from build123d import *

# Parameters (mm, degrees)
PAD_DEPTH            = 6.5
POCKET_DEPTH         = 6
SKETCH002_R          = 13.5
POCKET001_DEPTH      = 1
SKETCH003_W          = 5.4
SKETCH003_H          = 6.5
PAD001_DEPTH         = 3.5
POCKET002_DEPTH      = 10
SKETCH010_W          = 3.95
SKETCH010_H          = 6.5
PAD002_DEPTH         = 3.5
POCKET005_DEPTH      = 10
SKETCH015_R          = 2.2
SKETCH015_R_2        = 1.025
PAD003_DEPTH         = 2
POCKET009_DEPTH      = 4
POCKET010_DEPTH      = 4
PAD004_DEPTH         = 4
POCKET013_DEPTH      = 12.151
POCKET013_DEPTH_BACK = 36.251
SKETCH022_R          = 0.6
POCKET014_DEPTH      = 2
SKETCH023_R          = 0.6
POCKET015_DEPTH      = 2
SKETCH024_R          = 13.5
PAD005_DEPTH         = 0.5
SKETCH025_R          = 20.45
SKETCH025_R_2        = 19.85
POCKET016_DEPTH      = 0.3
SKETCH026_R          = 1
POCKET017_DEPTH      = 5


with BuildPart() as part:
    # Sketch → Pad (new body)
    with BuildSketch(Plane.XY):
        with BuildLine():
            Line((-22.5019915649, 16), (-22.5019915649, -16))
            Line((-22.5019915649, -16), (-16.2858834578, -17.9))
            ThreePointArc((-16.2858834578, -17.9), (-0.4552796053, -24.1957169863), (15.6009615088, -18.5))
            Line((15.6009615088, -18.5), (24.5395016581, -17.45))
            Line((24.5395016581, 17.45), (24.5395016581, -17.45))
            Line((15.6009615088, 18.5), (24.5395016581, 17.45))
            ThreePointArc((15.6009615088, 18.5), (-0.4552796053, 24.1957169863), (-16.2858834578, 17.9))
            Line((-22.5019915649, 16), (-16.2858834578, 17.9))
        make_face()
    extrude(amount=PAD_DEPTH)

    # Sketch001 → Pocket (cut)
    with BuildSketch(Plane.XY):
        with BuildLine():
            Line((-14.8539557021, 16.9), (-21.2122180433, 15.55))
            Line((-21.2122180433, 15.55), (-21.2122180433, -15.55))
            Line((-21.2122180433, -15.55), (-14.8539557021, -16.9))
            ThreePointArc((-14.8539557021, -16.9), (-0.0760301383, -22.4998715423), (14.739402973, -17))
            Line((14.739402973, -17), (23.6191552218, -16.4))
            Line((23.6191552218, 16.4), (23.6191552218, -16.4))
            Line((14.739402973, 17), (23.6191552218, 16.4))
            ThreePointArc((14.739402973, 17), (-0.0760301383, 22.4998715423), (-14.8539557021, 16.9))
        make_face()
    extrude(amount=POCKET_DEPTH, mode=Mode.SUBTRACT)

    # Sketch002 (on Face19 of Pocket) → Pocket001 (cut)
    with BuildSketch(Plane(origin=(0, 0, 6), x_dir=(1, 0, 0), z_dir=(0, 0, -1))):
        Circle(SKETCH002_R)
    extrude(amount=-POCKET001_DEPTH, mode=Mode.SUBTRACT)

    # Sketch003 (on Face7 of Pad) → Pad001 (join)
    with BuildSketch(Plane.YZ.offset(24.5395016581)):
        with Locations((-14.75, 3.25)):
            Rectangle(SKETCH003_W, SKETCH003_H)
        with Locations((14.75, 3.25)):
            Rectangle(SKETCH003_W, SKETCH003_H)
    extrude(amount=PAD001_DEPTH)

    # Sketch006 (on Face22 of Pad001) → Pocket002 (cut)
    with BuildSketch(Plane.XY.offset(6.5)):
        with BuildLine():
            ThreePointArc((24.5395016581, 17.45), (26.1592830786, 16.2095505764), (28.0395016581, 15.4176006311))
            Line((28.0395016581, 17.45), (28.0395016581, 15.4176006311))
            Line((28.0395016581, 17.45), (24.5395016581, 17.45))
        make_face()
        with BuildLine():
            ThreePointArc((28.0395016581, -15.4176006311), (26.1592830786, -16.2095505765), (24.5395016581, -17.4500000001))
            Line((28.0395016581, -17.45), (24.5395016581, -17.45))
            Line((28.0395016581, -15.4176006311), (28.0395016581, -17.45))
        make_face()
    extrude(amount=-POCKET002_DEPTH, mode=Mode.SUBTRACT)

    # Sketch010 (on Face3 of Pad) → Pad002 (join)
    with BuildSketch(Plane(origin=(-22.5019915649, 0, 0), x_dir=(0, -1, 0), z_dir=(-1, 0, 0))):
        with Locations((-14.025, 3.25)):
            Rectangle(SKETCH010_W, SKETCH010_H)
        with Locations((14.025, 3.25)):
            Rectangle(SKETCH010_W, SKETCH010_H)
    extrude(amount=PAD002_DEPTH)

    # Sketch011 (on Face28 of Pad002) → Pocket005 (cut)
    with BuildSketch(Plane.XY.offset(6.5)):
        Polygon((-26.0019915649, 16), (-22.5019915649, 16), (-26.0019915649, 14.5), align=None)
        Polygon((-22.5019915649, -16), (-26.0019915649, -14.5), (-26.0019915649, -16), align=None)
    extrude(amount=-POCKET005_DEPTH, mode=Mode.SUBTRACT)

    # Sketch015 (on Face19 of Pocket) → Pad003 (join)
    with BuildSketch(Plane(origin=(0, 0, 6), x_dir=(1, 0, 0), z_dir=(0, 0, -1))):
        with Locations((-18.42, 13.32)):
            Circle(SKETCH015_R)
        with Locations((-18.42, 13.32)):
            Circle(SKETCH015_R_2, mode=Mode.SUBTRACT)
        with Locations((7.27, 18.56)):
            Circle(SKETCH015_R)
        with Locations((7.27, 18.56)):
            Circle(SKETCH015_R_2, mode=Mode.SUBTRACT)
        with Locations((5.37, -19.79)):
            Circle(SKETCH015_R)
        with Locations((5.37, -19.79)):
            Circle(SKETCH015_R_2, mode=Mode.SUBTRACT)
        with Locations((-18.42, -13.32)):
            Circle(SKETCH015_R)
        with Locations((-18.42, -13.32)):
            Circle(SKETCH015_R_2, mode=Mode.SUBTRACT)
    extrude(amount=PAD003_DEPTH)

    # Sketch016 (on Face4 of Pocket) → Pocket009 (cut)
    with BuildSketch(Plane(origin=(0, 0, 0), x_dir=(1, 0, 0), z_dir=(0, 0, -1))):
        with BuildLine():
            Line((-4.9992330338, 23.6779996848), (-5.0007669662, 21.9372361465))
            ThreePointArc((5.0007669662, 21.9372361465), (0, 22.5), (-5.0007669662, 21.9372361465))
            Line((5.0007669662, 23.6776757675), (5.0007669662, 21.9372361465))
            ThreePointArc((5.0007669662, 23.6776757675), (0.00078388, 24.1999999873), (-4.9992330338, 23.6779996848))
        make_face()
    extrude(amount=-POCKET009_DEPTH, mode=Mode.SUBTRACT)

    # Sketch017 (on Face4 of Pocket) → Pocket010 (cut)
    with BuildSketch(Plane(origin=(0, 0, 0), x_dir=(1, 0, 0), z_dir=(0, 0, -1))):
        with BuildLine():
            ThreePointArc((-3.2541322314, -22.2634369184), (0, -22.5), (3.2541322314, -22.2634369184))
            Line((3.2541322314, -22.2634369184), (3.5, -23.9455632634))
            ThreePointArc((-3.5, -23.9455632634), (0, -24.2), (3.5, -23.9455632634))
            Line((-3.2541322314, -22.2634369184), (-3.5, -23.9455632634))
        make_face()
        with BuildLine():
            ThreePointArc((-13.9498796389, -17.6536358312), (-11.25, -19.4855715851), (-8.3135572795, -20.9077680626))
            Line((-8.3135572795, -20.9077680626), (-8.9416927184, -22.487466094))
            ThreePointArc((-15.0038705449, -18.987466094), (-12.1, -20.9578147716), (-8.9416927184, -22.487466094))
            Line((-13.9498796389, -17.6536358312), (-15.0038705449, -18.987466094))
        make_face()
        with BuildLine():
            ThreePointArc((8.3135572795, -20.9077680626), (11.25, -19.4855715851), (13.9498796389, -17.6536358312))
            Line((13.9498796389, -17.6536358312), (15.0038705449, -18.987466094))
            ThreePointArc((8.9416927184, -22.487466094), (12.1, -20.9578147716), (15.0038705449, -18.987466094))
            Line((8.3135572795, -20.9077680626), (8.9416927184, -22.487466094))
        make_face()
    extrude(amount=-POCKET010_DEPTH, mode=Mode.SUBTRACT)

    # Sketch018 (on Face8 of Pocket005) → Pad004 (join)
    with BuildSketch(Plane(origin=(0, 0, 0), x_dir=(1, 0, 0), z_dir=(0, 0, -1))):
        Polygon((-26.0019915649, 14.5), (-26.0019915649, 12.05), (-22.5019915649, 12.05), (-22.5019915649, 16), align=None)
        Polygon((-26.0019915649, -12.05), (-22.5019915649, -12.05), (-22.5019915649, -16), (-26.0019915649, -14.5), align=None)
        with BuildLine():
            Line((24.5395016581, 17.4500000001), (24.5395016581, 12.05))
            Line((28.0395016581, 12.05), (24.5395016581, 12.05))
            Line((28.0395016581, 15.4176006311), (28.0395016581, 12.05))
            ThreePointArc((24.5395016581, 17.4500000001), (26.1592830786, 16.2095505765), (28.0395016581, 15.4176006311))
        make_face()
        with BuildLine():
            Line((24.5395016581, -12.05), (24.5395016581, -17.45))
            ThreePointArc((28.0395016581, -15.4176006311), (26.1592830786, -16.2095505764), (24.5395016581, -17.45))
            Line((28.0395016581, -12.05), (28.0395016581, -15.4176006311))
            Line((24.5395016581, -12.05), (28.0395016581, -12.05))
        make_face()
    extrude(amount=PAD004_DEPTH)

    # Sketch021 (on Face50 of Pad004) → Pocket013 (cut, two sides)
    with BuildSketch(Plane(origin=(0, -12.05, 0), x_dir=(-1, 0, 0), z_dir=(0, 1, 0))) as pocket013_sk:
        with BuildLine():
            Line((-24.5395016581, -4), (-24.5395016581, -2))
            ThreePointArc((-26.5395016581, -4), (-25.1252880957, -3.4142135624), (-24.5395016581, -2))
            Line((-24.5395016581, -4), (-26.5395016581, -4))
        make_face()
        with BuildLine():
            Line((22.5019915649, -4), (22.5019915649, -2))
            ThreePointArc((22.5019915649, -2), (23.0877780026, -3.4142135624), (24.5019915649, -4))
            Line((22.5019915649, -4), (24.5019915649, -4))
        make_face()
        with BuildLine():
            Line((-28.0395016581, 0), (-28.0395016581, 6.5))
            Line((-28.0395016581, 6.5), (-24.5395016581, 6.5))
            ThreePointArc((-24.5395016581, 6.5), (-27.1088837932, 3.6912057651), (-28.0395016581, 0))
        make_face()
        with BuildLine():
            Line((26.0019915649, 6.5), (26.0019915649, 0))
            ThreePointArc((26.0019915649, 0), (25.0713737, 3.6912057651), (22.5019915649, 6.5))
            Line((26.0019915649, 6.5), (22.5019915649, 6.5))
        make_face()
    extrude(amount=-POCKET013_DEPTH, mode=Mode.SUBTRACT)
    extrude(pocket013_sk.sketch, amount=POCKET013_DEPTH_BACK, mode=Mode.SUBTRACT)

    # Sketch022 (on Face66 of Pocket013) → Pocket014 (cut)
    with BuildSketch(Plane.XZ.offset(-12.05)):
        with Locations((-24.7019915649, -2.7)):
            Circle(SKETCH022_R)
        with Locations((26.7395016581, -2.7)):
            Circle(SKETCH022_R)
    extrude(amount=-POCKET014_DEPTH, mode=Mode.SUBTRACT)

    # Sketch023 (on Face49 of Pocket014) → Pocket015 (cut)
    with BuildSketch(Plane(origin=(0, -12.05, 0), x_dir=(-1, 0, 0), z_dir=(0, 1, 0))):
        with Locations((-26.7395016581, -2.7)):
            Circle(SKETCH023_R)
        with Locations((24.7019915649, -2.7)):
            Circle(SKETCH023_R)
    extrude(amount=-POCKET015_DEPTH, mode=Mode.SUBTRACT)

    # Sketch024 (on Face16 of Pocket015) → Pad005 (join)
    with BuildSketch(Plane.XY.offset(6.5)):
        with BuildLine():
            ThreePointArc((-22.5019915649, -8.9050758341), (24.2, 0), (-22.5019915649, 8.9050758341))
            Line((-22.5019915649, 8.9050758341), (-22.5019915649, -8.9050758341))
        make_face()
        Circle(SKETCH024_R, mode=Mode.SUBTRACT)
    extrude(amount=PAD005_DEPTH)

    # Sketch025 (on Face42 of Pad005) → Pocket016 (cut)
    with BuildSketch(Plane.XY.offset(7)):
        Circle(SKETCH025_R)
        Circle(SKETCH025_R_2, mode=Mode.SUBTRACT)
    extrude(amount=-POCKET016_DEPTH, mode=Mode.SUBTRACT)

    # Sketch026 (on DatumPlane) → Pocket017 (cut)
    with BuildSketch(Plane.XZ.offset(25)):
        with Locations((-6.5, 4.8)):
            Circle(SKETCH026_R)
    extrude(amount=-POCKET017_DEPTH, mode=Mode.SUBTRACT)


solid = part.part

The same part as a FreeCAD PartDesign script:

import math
import FreeCAD as App
import Part
import Sketcher
Q = App.Units.Quantity


def add_polygon(sketch, points):
    """Adds a closed chain of lines whose ends are joined by coincident constraints."""
    first, n = sketch.GeometryCount, len(points)
    for a, b in zip(points, points[1:] + points[:1]):
        sketch.addGeometry(Part.LineSegment(App.Vector(*a, 0), App.Vector(*b, 0)), False)
    for i in range(n):
        sketch.addConstraint(Sketcher.Constraint("Coincident", first + i, 2, first + (i + 1) % n, 1))

doc = App.newDocument("Part")
params = doc.addObject("Spreadsheet::Sheet", "Params")
for row, (alias, value) in enumerate([
    ("sketch1_radius", "24.2 mm"),
    ("sketch1_height", "32 mm"),
    ("sketch1_length", "9 mm"),
    ("sketch1_height2", "34.9 mm"),
    ("sketch1_length2", "6.5 mm"),
    ("pad1_length", "6.5 mm"),
    ("sketch2_radius", "22.5 mm"),
    ("sketch2_height", "31.1 mm"),
    ("sketch2_height2", "32.8 mm"),
    ("sketch2_length", "6.5 mm"),
    ("sketch2_length2", "8.9 mm"),
    ("pocket1_length", "6 mm"),
    ("sketch3_diameter", "27 mm"),
    ("pocket2_length", "1 mm"),
    ("sketch4_width", "5.4 mm"),
    ("sketch4_height", "6.5 mm"),
    ("pad2_length", "3.5 mm"),
    ("sketch5_width", "3.5 mm"),
    ("pocket3_length", "10 mm"),
    ("sketch6_height", "6.5 mm"),
    ("sketch6_width", "3.95 mm"),
    ("pad3_length", "3.5 mm"),
    ("sketch7_width", "3.5 mm"),
    ("sketch7_height", "1.5 mm"),
    ("pocket4_length", "10 mm"),
    ("sketch8_diameter", "4.4 mm"),
    ("sketch8_diameter2", "2.05 mm"),
    ("pad4_length", "2 mm"),
    ("sketch9_radius", "22.5 mm"),
    ("sketch9_radius2", "24.2 mm"),
    ("pocket5_length", "4 mm"),
    ("sketch10_radius", "22.5 mm"),
    ("sketch10_radius2", "24.2 mm"),
    ("pocket6_length", "4 mm"),
    ("sketch11_width", "3.5 mm"),
    ("sketch11_height", "5.4 mm"),
    ("sketch11_height2", "2.45 mm"),
    ("pad5_length", "4 mm"),
    ("sketch12_radius", "2 mm"),
    ("sketch12_width", "3.5 mm"),
    ("sketch12_height", "6.5 mm"),
    ("sketch13_diameter", "1.2 mm"),
    ("pocket8_length", "2 mm"),
    ("sketch14_diameter", "1.2 mm"),
    ("pocket9_length", "2 mm"),
    ("sketch15_diameter", "27 mm"),
    ("sketch15_radius", "24.2 mm"),
    ("pad6_length", "0.5 mm"),
    ("sketch16_diameter", "40.9 mm"),
    ("sketch16_diameter2", "39.7 mm"),
    ("pocket10_length", "0.3 mm"),
    ("sketch17_diameter", "2 mm"),
    ("pocket11_length", "5 mm"),
], start=1):
    params.set(f"A{row}", alias)
    params.set(f"B{row}", "=" + value)
    params.setAlias(f"B{row}", alias)

body = doc.addObject("PartDesign::Body", "Body")

# Sketch on XY plane
sketch1 = doc.addObject("Sketcher::SketchObject", "Sketch")
body.addObject(sketch1)
sketch1.AttachmentSupport = (doc.XY_Plane, [""])
sketch1.MapMode = "FlatFace"
sketch1.addGeometry([
    Part.LineSegment(App.Vector(-23, 16, 0), App.Vector(-23, -16, 0)),  # 0
    Part.LineSegment(App.Vector(-23, -16, 0), App.Vector(-16, -18, 0)),  # 1
    Part.ArcOfCircle(Part.Circle(App.Vector(0, 0, 0), App.Vector(0, 0, 1), 24), math.radians(-132), math.radians(-50)),  # 2
    Part.LineSegment(App.Vector(16, -18, 0), App.Vector(25, -17, 0)),  # 3
    Part.LineSegment(App.Vector(25, -17, 0), App.Vector(25, 17, 0)),  # 4
    Part.LineSegment(App.Vector(25, 17, 0), App.Vector(16, 18, 0)),  # 5
    Part.ArcOfCircle(Part.Circle(App.Vector(0, 0, 0), App.Vector(0, 0, 1), 24), math.radians(50), math.radians(132)),  # 6
    Part.LineSegment(App.Vector(-16, 18, 0), App.Vector(-23, 16, 0)),  # 7
], False)
sketch1.addConstraint([
    Sketcher.Constraint("Coincident", 0, 2, 1, 1),
    Sketcher.Constraint("Coincident", 1, 2, 2, 1),
    Sketcher.Constraint("Coincident", 2, 2, 3, 1),
    Sketcher.Constraint("Coincident", 3, 2, 4, 1),
    Sketcher.Constraint("Coincident", 4, 2, 5, 1),
    Sketcher.Constraint("Coincident", 5, 2, 6, 1),
    Sketcher.Constraint("Coincident", 6, 2, 7, 1),
    Sketcher.Constraint("Coincident", 7, 2, 0, 1),
    Sketcher.Constraint("Vertical", 0),
    Sketcher.Constraint("Vertical", 4),
    Sketcher.Constraint("Coincident", 2, 3, -1, 1),
    Sketcher.Constraint("Coincident", 6, 3, -1, 1),
    Sketcher.Constraint("Equal", 2, 6),
    Sketcher.Constraint("Vertical", 2, 2, 5, 2),
    Sketcher.Constraint("Vertical", 1, 2, 6, 2),
    Sketcher.Constraint("Equal", 3, 5),
    Sketcher.Constraint("Equal", 1, 7),
    Sketcher.Constraint("Radius", 2, Q("24.2 mm")),
    Sketcher.Constraint("DistanceY", 0, 2, 0, 1, Q("32 mm")),
    Sketcher.Constraint("Distance", 3, Q("9 mm")),
    Sketcher.Constraint("DistanceY", 4, 1, 4, 2, Q("34.9 mm")),
    Sketcher.Constraint("DistanceY", 2, 2, 5, 2, Q("37 mm")),
    Sketcher.Constraint("Distance", 1, Q("6.5 mm")),
    Sketcher.Constraint("DistanceY", 1, 2, -1, 1, Q("17.9 mm")),
])
sketch1.setExpression("Constraints[17]", "Params.sketch1_radius")
sketch1.setExpression("Constraints[18]", "Params.sketch1_height")
sketch1.setExpression("Constraints[19]", "Params.sketch1_length")
sketch1.setExpression("Constraints[20]", "Params.sketch1_height2")
sketch1.setExpression("Constraints[22]", "Params.sketch1_length2")
pad1 = doc.addObject("PartDesign::Pad", "Pad")
body.addObject(pad1)
pad1.Profile = sketch1
pad1.setExpression("Length", "Params.pad1_length")

# Sketch on XY plane
sketch2 = doc.addObject("Sketcher::SketchObject", "Sketch001")
body.addObject(sketch2)
sketch2.AttachmentSupport = (doc.XY_Plane, [""])
sketch2.MapMode = "FlatFace"
sketch2.addGeometry([
    Part.LineSegment(App.Vector(-15, 17, 0), App.Vector(-21, 16, 0)),  # 0
    Part.LineSegment(App.Vector(-21, 16, 0), App.Vector(-21, -16, 0)),  # 1
    Part.LineSegment(App.Vector(-21, -16, 0), App.Vector(-15, -17, 0)),  # 2
    Part.ArcOfCircle(Part.Circle(App.Vector(0, 0, 0), App.Vector(0, 0, 1), 22), math.radians(-131), math.radians(-49)),  # 3
    Part.LineSegment(App.Vector(15, -17, 0), App.Vector(24, -16, 0)),  # 4
    Part.LineSegment(App.Vector(24, -16, 0), App.Vector(24, 16, 0)),  # 5
    Part.LineSegment(App.Vector(24, 16, 0), App.Vector(15, 17, 0)),  # 6
    Part.ArcOfCircle(Part.Circle(App.Vector(0, 0, 0), App.Vector(0, 0, 1), 22), math.radians(49), math.radians(131)),  # 7
], False)
sketch2.addConstraint([
    Sketcher.Constraint("Coincident", 0, 2, 1, 1),
    Sketcher.Constraint("Coincident", 1, 2, 2, 1),
    Sketcher.Constraint("Coincident", 2, 2, 3, 1),
    Sketcher.Constraint("Coincident", 3, 2, 4, 1),
    Sketcher.Constraint("Coincident", 4, 2, 5, 1),
    Sketcher.Constraint("Coincident", 5, 2, 6, 1),
    Sketcher.Constraint("Coincident", 6, 2, 7, 1),
    Sketcher.Constraint("Coincident", 7, 2, 0, 1),
    Sketcher.Constraint("Vertical", 1),
    Sketcher.Constraint("Vertical", 5),
    Sketcher.Constraint("Coincident", 3, 3, -1, 1),
    Sketcher.Constraint("Coincident", 7, 3, -1, 1),
    Sketcher.Constraint("Equal", 3, 7),
    Sketcher.Constraint("Vertical", 3, 2, 6, 2),
    Sketcher.Constraint("Vertical", 2, 2, 7, 2),
    Sketcher.Constraint("Equal", 0, 2),
    Sketcher.Constraint("Equal", 4, 6),
    Sketcher.Constraint("Radius", 3, Q("22.5 mm")),
    Sketcher.Constraint("DistanceY", 1, 2, 1, 1, Q("31.1 mm")),
    Sketcher.Constraint("DistanceY", 5, 1, 5, 2, Q("32.8 mm")),
    Sketcher.Constraint("DistanceY", 3, 2, -1, 1, Q("17 mm")),
    Sketcher.Constraint("Distance", 0, Q("6.5 mm")),
    Sketcher.Constraint("Distance", 4, Q("8.9 mm")),
    Sketcher.Constraint("DistanceY", 2, 2, -1, 1, Q("16.9 mm")),
])
sketch2.setExpression("Constraints[17]", "Params.sketch2_radius")
sketch2.setExpression("Constraints[18]", "Params.sketch2_height")
sketch2.setExpression("Constraints[19]", "Params.sketch2_height2")
sketch2.setExpression("Constraints[21]", "Params.sketch2_length")
sketch2.setExpression("Constraints[22]", "Params.sketch2_length2")
pocket1 = doc.addObject("PartDesign::Pocket", "Pocket")
body.addObject(pocket1)
pocket1.Profile = sketch2
pocket1.setExpression("Length", "Params.pocket1_length")
pocket1.Reversed = True

# Sketch on XY plane
sketch3 = doc.addObject("Sketcher::SketchObject", "Sketch002")
body.addObject(sketch3)
sketch3.AttachmentSupport = (doc.XY_Plane, [""])
sketch3.MapMode = "FlatFace"
sketch3.AttachmentOffset = App.Placement(App.Vector(0, 0, 6), App.Rotation())
sketch3.addGeometry(Part.Circle(App.Vector(0, 0, 0), App.Vector(0, 0, 1), 14), False)
sketch3.addConstraint([
    Sketcher.Constraint("Coincident", 0, 3, -1, 1),
    Sketcher.Constraint("Diameter", 0, Q("27 mm")),
])
sketch3.setExpression("Constraints[1]", "Params.sketch3_diameter")
pocket2 = doc.addObject("PartDesign::Pocket", "Pocket001")
body.addObject(pocket2)
pocket2.Profile = sketch3
pocket2.setExpression("Length", "Params.pocket2_length")
pocket2.Reversed = True

# Sketch on YZ plane
sketch4 = doc.addObject("Sketcher::SketchObject", "Sketch003")
body.addObject(sketch4)
sketch4.AttachmentSupport = (doc.YZ_Plane, [""])
sketch4.MapMode = "FlatFace"
sketch4.AttachmentOffset = App.Placement(App.Vector(0, 0, 24.539502), App.Rotation())
add_polygon(sketch4, [(-17, 6), (-17, 0), (-12, 0), (-12, 6)])  # lines 0-3
add_polygon(sketch4, [(12, 6), (12, 0), (17, 0), (17, 6)])  # lines 4-7
sketch4.addConstraint([
    Sketcher.Constraint("Vertical", 0),
    Sketcher.Constraint("Horizontal", 1),
    Sketcher.Constraint("Vertical", 2),
    Sketcher.Constraint("Horizontal", 3),
    Sketcher.Constraint("Vertical", 4),
    Sketcher.Constraint("Horizontal", 5),
    Sketcher.Constraint("Vertical", 6),
    Sketcher.Constraint("Horizontal", 7),
    Sketcher.Constraint("Symmetric", 1, 2, 4, 2, -1, 1),
    Sketcher.Constraint("Symmetric", 0, 2, 5, 2, -2),
    Sketcher.Constraint("Horizontal", 3, 2, 6, 2),
    Sketcher.Constraint("DistanceX", 1, 1, 1, 2, Q("5.4 mm")),
    Sketcher.Constraint("DistanceY", 0, 2, 0, 1, Q("6.5 mm")),
    Sketcher.Constraint("DistanceX", 1, 2, 4, 2, Q("24.1 mm")),
])
sketch4.setExpression("Constraints[19]", "Params.sketch4_width")
sketch4.setExpression("Constraints[20]", "Params.sketch4_height")
pad2 = doc.addObject("PartDesign::Pad", "Pad001")
body.addObject(pad2)
pad2.Profile = sketch4
pad2.setExpression("Length", "Params.pad2_length")

# Sketch on XY plane
sketch5 = doc.addObject("Sketcher::SketchObject", "Sketch004")
body.addObject(sketch5)
sketch5.AttachmentSupport = (doc.XY_Plane, [""])
sketch5.MapMode = "FlatFace"
sketch5.AttachmentOffset = App.Placement(App.Vector(0, 0, 6.5), App.Rotation())
sketch5.addGeometry([
    Part.ArcOfCircle(Part.Circle(App.Vector(30.2, 23.1, 0), App.Vector(0, 0, 1), 8), math.radians(-135), math.radians(-106)),  # 0
    Part.LineSegment(App.Vector(28, 15.4, 0), App.Vector(28, 17.4, 0)),  # 1
    Part.LineSegment(App.Vector(28, 17.4, 0), App.Vector(24.5, 17.4, 0)),  # 2
    Part.ArcOfCircle(Part.Circle(App.Vector(30.2, -23.2, 0), App.Vector(0, 0, 1), 8), math.radians(106), math.radians(135)),  # 3
    Part.LineSegment(App.Vector(24.5, -17.4, 0), App.Vector(28, -17.4, 0)),  # 4
    Part.LineSegment(App.Vector(28, -17.4, 0), App.Vector(28, -15.4, 0)),  # 5
], False)
sketch5.addConstraint([
    Sketcher.Constraint("Coincident", 0, 2, 1, 1),
    Sketcher.Constraint("Coincident", 1, 2, 2, 1),
    Sketcher.Constraint("Coincident", 2, 2, 0, 1),
    Sketcher.Constraint("Coincident", 3, 2, 4, 1),
    Sketcher.Constraint("Coincident", 4, 2, 5, 1),
    Sketcher.Constraint("Coincident", 5, 2, 3, 1),
    Sketcher.Constraint("Vertical", 1),
    Sketcher.Constraint("Horizontal", 2),
    Sketcher.Constraint("Horizontal", 4),
    Sketcher.Constraint("Vertical", 5),
    Sketcher.Constraint("Equal", 0, 3),
    Sketcher.Constraint("Symmetric", 0, 3, 3, 3, -1),
    Sketcher.Constraint("Symmetric", 1, 2, 4, 2, -1),
    Sketcher.Constraint("DistanceX", 2, 2, 2, 1, Q("3.5 mm")),
    Sketcher.Constraint("DistanceY", 3, 3, 0, 3, Q("46.3 mm")),
    Sketcher.Constraint("DistanceY", 1, 2, 0, 3, Q("5.7 mm")),
    Sketcher.Constraint("Radius", 0, Q("8.02574 mm")),
    Sketcher.Constraint("DistanceX", -1, 1, 0, 3, Q("30.189502 mm")),
])
sketch5.setExpression("Constraints[13]", "Params.sketch5_width")
pocket3 = doc.addObject("PartDesign::Pocket", "Pocket002")
body.addObject(pocket3)
pocket3.Profile = sketch5
pocket3.setExpression("Length", "Params.pocket3_length")

# Sketch on YZ plane
sketch6 = doc.addObject("Sketcher::SketchObject", "Sketch005")
body.addObject(sketch6)
sketch6.AttachmentSupport = (doc.YZ_Plane, [""])
sketch6.MapMode = "FlatFace"
sketch6.AttachmentOffset = App.Placement(App.Vector(0, 0, -22.501992), App.Rotation())
add_polygon(sketch6, [(16, 6.5), (16, 0), (12.1, 0), (12.1, 6.5)])  # lines 0-3
add_polygon(sketch6, [(-12.1, 6.5), (-12.1, 0), (-16, 0), (-16, 6.5)])  # lines 4-7
sketch6.addConstraint([
    Sketcher.Constraint("Vertical", 0),
    Sketcher.Constraint("Horizontal", 1),
    Sketcher.Constraint("Vertical", 2),
    Sketcher.Constraint("Horizontal", 3),
    Sketcher.Constraint("Vertical", 4),
    Sketcher.Constraint("Horizontal", 5),
    Sketcher.Constraint("Vertical", 6),
    Sketcher.Constraint("Horizontal", 7),
    Sketcher.Constraint("Symmetric", 1, 2, 4, 2, -1, 1),
    Sketcher.Constraint("Symmetric", 0, 2, 5, 2, -2),
    Sketcher.Constraint("Horizontal", 3, 2, 6, 2),
    Sketcher.Constraint("DistanceY", 0, 2, 0, 1, Q("6.5 mm")),
    Sketcher.Constraint("DistanceX", -1, 1, 0, 2, Q("16 mm")),
    Sketcher.Constraint("DistanceX", 1, 2, 1, 1, Q("3.95 mm")),
])
sketch6.setExpression("Constraints[19]", "Params.sketch6_height")
sketch6.setExpression("Constraints[21]", "Params.sketch6_width")
pad3 = doc.addObject("PartDesign::Pad", "Pad002")
body.addObject(pad3)
pad3.Profile = sketch6
pad3.setExpression("Length", "Params.pad3_length")
pad3.Reversed = True

# Sketch on XY plane
sketch7 = doc.addObject("Sketcher::SketchObject", "Sketch006")
body.addObject(sketch7)
sketch7.AttachmentSupport = (doc.XY_Plane, [""])
sketch7.MapMode = "FlatFace"
sketch7.AttachmentOffset = App.Placement(App.Vector(0, 0, 6.5), App.Rotation())
add_polygon(sketch7, [(-22.5, 16), (-26, 16), (-26, 14.5)])  # lines 0-2
add_polygon(sketch7, [(-22.5, -16), (-26, -14.5), (-26, -16)])  # lines 3-5
sketch7.addConstraint([
    Sketcher.Constraint("Horizontal", 0),
    Sketcher.Constraint("Vertical", 1),
    Sketcher.Constraint("Vertical", 4),
    Sketcher.Constraint("Horizontal", 5),
    Sketcher.Constraint("Symmetric", 1, 2, 3, 2, -1),
    Sketcher.Constraint("Symmetric", 2, 2, 5, 2, -1),
    Sketcher.Constraint("DistanceX", 0, 2, 0, 1, Q("3.5 mm")),
    Sketcher.Constraint("DistanceY", 1, 2, 1, 1, Q("1.5 mm")),
    Sketcher.Constraint("DistanceY", -1, 1, 0, 2, Q("16 mm")),
    Sketcher.Constraint("DistanceX", 0, 2, -1, 1, Q("26.001992 mm")),
])
sketch7.setExpression("Constraints[12]", "Params.sketch7_width")
sketch7.setExpression("Constraints[13]", "Params.sketch7_height")
pocket4 = doc.addObject("PartDesign::Pocket", "Pocket003")
body.addObject(pocket4)
pocket4.Profile = sketch7
pocket4.setExpression("Length", "Params.pocket4_length")

# Sketch on XY plane
sketch8 = doc.addObject("Sketcher::SketchObject", "Sketch007")
body.addObject(sketch8)
sketch8.AttachmentSupport = (doc.XY_Plane, [""])
sketch8.MapMode = "FlatFace"
sketch8.AttachmentOffset = App.Placement(App.Vector(0, 0, 6), App.Rotation())
sketch8.addGeometry([
    Part.Circle(App.Vector(-18.4, -13.3, 0), App.Vector(0, 0, 1), 2.2),  # 0
    Part.Circle(App.Vector(-18.4, -13.3, 0), App.Vector(0, 0, 1), 1),  # 1
    Part.Circle(App.Vector(7.3, -18.6, 0), App.Vector(0, 0, 1), 2.2),  # 2
    Part.Circle(App.Vector(7.3, -18.6, 0), App.Vector(0, 0, 1), 1),  # 3
    Part.Circle(App.Vector(5.4, 19.8, 0), App.Vector(0, 0, 1), 2.2),  # 4
    Part.Circle(App.Vector(5.4, 19.8, 0), App.Vector(0, 0, 1), 1),  # 5
    Part.Circle(App.Vector(-18.4, 13.3, 0), App.Vector(0, 0, 1), 2.2),  # 6
    Part.Circle(App.Vector(-18.4, 13.3, 0), App.Vector(0, 0, 1), 1),  # 7
], False)
sketch8.addConstraint([
    Sketcher.Constraint("Coincident", 1, 3, 0, 3),
    Sketcher.Constraint("Coincident", 3, 3, 2, 3),
    Sketcher.Constraint("Coincident", 5, 3, 4, 3),
    Sketcher.Constraint("Coincident", 7, 3, 6, 3),
    Sketcher.Constraint("Equal", 0, 2),
    Sketcher.Constraint("Equal", 1, 3),
    Sketcher.Constraint("Equal", 2, 4),
    Sketcher.Constraint("Equal", 3, 5),
    Sketcher.Constraint("Equal", 4, 6),
    Sketcher.Constraint("Equal", 5, 7),
    Sketcher.Constraint("Symmetric", 0, 3, 6, 3, -1),
    Sketcher.Constraint("Diameter", 0, Q("4.4 mm")),
    Sketcher.Constraint("Diameter", 1, Q("2.05 mm")),
    Sketcher.Constraint("DistanceX", 4, 3, 2, 3, Q("1.9 mm")),
    Sketcher.Constraint("DistanceX", 0, 3, -1, 1, Q("18.42 mm")),
    Sketcher.Constraint("DistanceY", 0, 3, -1, 1, Q("13.32 mm")),
    Sketcher.Constraint("DistanceX", -1, 1, 2, 3, Q("7.27 mm")),
    Sketcher.Constraint("DistanceY", 2, 3, -1, 1, Q("18.56 mm")),
    Sketcher.Constraint("DistanceY", -1, 1, 4, 3, Q("19.79 mm")),
])
sketch8.setExpression("Constraints[11]", "Params.sketch8_diameter")
sketch8.setExpression("Constraints[12]", "Params.sketch8_diameter2")
pad4 = doc.addObject("PartDesign::Pad", "Pad003")
body.addObject(pad4)
pad4.Profile = sketch8
pad4.setExpression("Length", "Params.pad4_length")
pad4.Reversed = True

# Sketch on XY plane
sketch9 = doc.addObject("Sketcher::SketchObject", "Sketch008")
body.addObject(sketch9)
sketch9.AttachmentSupport = (doc.XY_Plane, [""])
sketch9.MapMode = "FlatFace"
sketch9.addGeometry([
    Part.LineSegment(App.Vector(-5, -23.7, 0), App.Vector(-5, -21.9, 0)),
    Part.ArcOfCircle(Part.Circle(App.Vector(0, 0, 0), App.Vector(0, 0, 1), 22.5), math.radians(-103), math.radians(-77)),
    Part.LineSegment(App.Vector(5, -21.9, 0), App.Vector(5, -23.7, 0)),
    Part.ArcOfCircle(Part.Circle(App.Vector(0, 0, 0), App.Vector(0, 0, 1), 24.2), math.radians(-102), math.radians(-78)),
], False)
sketch9.addConstraint([
    Sketcher.Constraint("Coincident", 0, 2, 1, 1),
    Sketcher.Constraint("Coincident", 1, 2, 2, 1),
    Sketcher.Constraint("Coincident", 2, 2, 3, 2),
    Sketcher.Constraint("Coincident", 3, 1, 0, 1),
    Sketcher.Constraint("Vertical", 2),
    Sketcher.Constraint("Coincident", 1, 3, -1, 1),
    Sketcher.Constraint("Coincident", 3, 3, -1, 1),
    Sketcher.Constraint("Horizontal", 0, 2, 1, 2),
    Sketcher.Constraint("Radius", 1, Q("22.5 mm")),
    Sketcher.Constraint("Radius", 3, Q("24.2 mm")),
    Sketcher.Constraint("DistanceX", 3, 1, 2, 2, Q("10 mm")),
    Sketcher.Constraint("DistanceY", 3, 1, -1, 1, Q("23.678 mm")),
])
sketch9.setExpression("Constraints[8]", "Params.sketch9_radius")
sketch9.setExpression("Constraints[9]", "Params.sketch9_radius2")
pocket5 = doc.addObject("PartDesign::Pocket", "Pocket004")
body.addObject(pocket5)
pocket5.Profile = sketch9
pocket5.setExpression("Length", "Params.pocket5_length")
pocket5.Reversed = True

# Sketch on XY plane
sketch10 = doc.addObject("Sketcher::SketchObject", "Sketch009")
body.addObject(sketch10)
sketch10.AttachmentSupport = (doc.XY_Plane, [""])
sketch10.MapMode = "FlatFace"
sketch10.addGeometry([
    Part.ArcOfCircle(Part.Circle(App.Vector(0, 0, 0), App.Vector(0, 0, 1), 22.5), math.radians(81.68), math.radians(98.32)),  # 0
    Part.LineSegment(App.Vector(-3.3, 22.3, 0), App.Vector(-3.5, 23.9, 0)),  # 1
    Part.ArcOfCircle(Part.Circle(App.Vector(0, 0, 0), App.Vector(0, 0, 1), 24.2), math.radians(81.68), math.radians(98.32)),  # 2
    Part.LineSegment(App.Vector(3.5, 23.9, 0), App.Vector(3.3, 22.3, 0)),  # 3
    Part.ArcOfCircle(Part.Circle(App.Vector(0, 0, 0), App.Vector(0, 0, 1), 22.5), math.radians(111.68), math.radians(128.32)),  # 4
    Part.LineSegment(App.Vector(-13.9, 17.7, 0), App.Vector(-15, 19, 0)),  # 5
    Part.ArcOfCircle(Part.Circle(App.Vector(0, 0, 0), App.Vector(0, 0, 1), 24.2), math.radians(111.68), math.radians(128.32)),  # 6
    Part.LineSegment(App.Vector(-8.9, 22.5, 0), App.Vector(-8.3, 20.9, 0)),  # 7
    Part.ArcOfCircle(Part.Circle(App.Vector(0, 0, 0), App.Vector(0, 0, 1), 22.5), math.radians(51.68), math.radians(68.32)),  # 8
    Part.LineSegment(App.Vector(8.3, 20.9, 0), App.Vector(8.9, 22.5, 0)),  # 9
    Part.ArcOfCircle(Part.Circle(App.Vector(0, 0, 0), App.Vector(0, 0, 1), 24.2), math.radians(51.68), math.radians(68.32)),  # 10
    Part.LineSegment(App.Vector(15, 19, 0), App.Vector(13.9, 17.7, 0)),  # 11
], False)
sketch10.addConstraint([
    Sketcher.Constraint("Coincident", 0, 2, 1, 1),
    Sketcher.Constraint("Coincident", 1, 2, 2, 2),
    Sketcher.Constraint("Coincident", 2, 1, 3, 1),
    Sketcher.Constraint("Coincident", 3, 2, 0, 1),
    Sketcher.Constraint("Coincident", 4, 2, 5, 1),
    Sketcher.Constraint("Coincident", 5, 2, 6, 2),
    Sketcher.Constraint("Coincident", 6, 1, 7, 1),
    Sketcher.Constraint("Coincident", 7, 2, 4, 1),
    Sketcher.Constraint("Coincident", 8, 2, 9, 1),
    Sketcher.Constraint("Coincident", 9, 2, 10, 2),
    Sketcher.Constraint("Coincident", 10, 1, 11, 1),
    Sketcher.Constraint("Coincident", 11, 2, 8, 1),
    Sketcher.Constraint("Coincident", 0, 3, -1, 1),
    Sketcher.Constraint("Coincident", 2, 3, -1, 1),
    Sketcher.Constraint("Coincident", 4, 3, -1, 1),
    Sketcher.Constraint("Coincident", 6, 3, -1, 1),
    Sketcher.Constraint("Coincident", 8, 3, -1, 1),
    Sketcher.Constraint("Coincident", 10, 3, -1, 1),
    Sketcher.Constraint("Equal", 0, 4),
    Sketcher.Constraint("Equal", 2, 6),
    Sketcher.Constraint("Equal", 4, 8),
    Sketcher.Constraint("Equal", 6, 10),
    Sketcher.Constraint("Horizontal", 1, 2, 2, 1),
    Sketcher.Constraint("Horizontal", 0, 2, 3, 2),
    Sketcher.Constraint("Horizontal", 7, 2, 8, 2),
    Sketcher.Constraint("Horizontal", 6, 1, 9, 2),
    Sketcher.Constraint("Horizontal", 5, 2, 10, 1),
    Sketcher.Constraint("Horizontal", 4, 2, 11, 2),
    Sketcher.Constraint("Radius", 0, Q("22.5 mm")),
    Sketcher.Constraint("Radius", 2, Q("24.2 mm")),
    Sketcher.Constraint("DistanceX", 1, 2, 2, 1, Q("7 mm")),
    Sketcher.Constraint("DistanceY", 5, 2, 6, 1, Q("3.5 mm")),
    Sketcher.Constraint("DistanceY", 4, 2, 0, 2, Q("4.609801 mm")),
    Sketcher.Constraint("DistanceY", 7, 2, 6, 1, Q("1.579698 mm")),
    Sketcher.Constraint("DistanceX", 4, 2, -1, 1, Q("13.94988 mm")),
    Sketcher.Constraint("DistanceX", 5, 2, -1, 1, Q("15.003871 mm")),
])
sketch10.setExpression("Constraints[28]", "Params.sketch10_radius")
sketch10.setExpression("Constraints[29]", "Params.sketch10_radius2")
pocket6 = doc.addObject("PartDesign::Pocket", "Pocket005")
body.addObject(pocket6)
pocket6.Profile = sketch10
pocket6.setExpression("Length", "Params.pocket6_length")
pocket6.Reversed = True

# Sketch on XY plane
sketch11 = doc.addObject("Sketcher::SketchObject", "Sketch010")
body.addObject(sketch11)
sketch11.AttachmentSupport = (doc.XY_Plane, [""])
sketch11.MapMode = "FlatFace"
add_polygon(sketch11, [(-26, -14.5), (-26, -12.1), (-22.5, -12.1), (-22.5, -16)])  # lines 0-3
add_polygon(sketch11, [(-22.5, 12.1), (-26, 12.1), (-26, 14.5), (-22.5, 16)])  # lines 4-7
sketch11.addGeometry(Part.LineSegment(App.Vector(24.5, -17.4, 0), App.Vector(24.5, -12.1, 0)), False)  # 8
sketch11.addGeometry(Part.LineSegment(App.Vector(24.5, -12.1, 0), App.Vector(28, -12.1, 0)), False)  # 9
sketch11.addGeometry(Part.LineSegment(App.Vector(28, -12.1, 0), App.Vector(28, -15.4, 0)), False)  # 10
sketch11.addGeometry(Part.ArcOfCircle(Part.Circle(App.Vector(30.2, -23.2, 0), App.Vector(0, 0, 1), 8), math.radians(106), math.radians(135)), False)  # 11
sketch11.addGeometry(Part.LineSegment(App.Vector(24.5, 12.1, 0), App.Vector(24.5, 17.4, 0)), False)  # 12
sketch11.addGeometry(Part.ArcOfCircle(Part.Circle(App.Vector(30.2, 23.1, 0), App.Vector(0, 0, 1), 8), math.radians(-135), math.radians(-106)), False)  # 13
sketch11.addGeometry(Part.LineSegment(App.Vector(28, 15.4, 0), App.Vector(28, 12.1, 0)), False)  # 14
sketch11.addGeometry(Part.LineSegment(App.Vector(28, 12.1, 0), App.Vector(24.5, 12.1, 0)), False)  # 15
sketch11.addConstraint([
    Sketcher.Constraint("Coincident", 8, 2, 9, 1),
    Sketcher.Constraint("Coincident", 9, 2, 10, 1),
    Sketcher.Constraint("Coincident", 10, 2, 11, 1),
    Sketcher.Constraint("Coincident", 11, 2, 8, 1),
    Sketcher.Constraint("Coincident", 12, 2, 13, 1),
    Sketcher.Constraint("Coincident", 13, 2, 14, 1),
    Sketcher.Constraint("Coincident", 14, 2, 15, 1),
    Sketcher.Constraint("Coincident", 15, 2, 12, 1),
    Sketcher.Constraint("Vertical", 0),
    Sketcher.Constraint("Horizontal", 1),
    Sketcher.Constraint("Vertical", 2),
    Sketcher.Constraint("Horizontal", 4),
    Sketcher.Constraint("Vertical", 5),
    Sketcher.Constraint("Vertical", 7),
    Sketcher.Constraint("Vertical", 8),
    Sketcher.Constraint("Horizontal", 9),
    Sketcher.Constraint("Vertical", 10),
    Sketcher.Constraint("Vertical", 12),
    Sketcher.Constraint("Vertical", 14),
    Sketcher.Constraint("Horizontal", 15),
    Sketcher.Constraint("Equal", 11, 13),
    Sketcher.Constraint("Symmetric", 11, 3, 13, 3, -1),
    Sketcher.Constraint("Symmetric", 0, 2, 4, 2, -1),
    Sketcher.Constraint("Symmetric", 2, 2, 6, 2, -1),
    Sketcher.Constraint("Symmetric", 9, 2, 14, 2, -1),
    Sketcher.Constraint("Horizontal", 1, 2, 8, 2),
    Sketcher.Constraint("Vertical", 11, 2, 12, 2),
    Sketcher.Constraint("Equal", 4, 9),
    Sketcher.Constraint("Equal", 0, 5),
    Sketcher.Constraint("DistanceX", 1, 1, 1, 2, Q("3.5 mm")),
    Sketcher.Constraint("DistanceY", 8, 1, 8, 2, Q("5.4 mm")),
    Sketcher.Constraint("DistanceY", 2, 2, -1, 1, Q("16 mm")),
    Sketcher.Constraint("DistanceY", 3, 2, 5, 2, Q("29 mm")),
    Sketcher.Constraint("DistanceY", 0, 1, 0, 2, Q("2.45 mm")),
    Sketcher.Constraint("DistanceY", 11, 3, 13, 3, Q("46.3 mm")),
    Sketcher.Constraint("Radius", 11, Q("8.02574 mm")),
    Sketcher.Constraint("DistanceX", -1, 1, 11, 3, Q("30.189502 mm")),
    Sketcher.Constraint("DistanceX", 0, 2, -1, 1, Q("26.001992 mm")),
])
sketch11.setExpression("Constraints[37]", "Params.sketch11_width")
sketch11.setExpression("Constraints[38]", "Params.sketch11_height")
sketch11.setExpression("Constraints[41]", "Params.sketch11_height2")
pad5 = doc.addObject("PartDesign::Pad", "Pad004")
body.addObject(pad5)
pad5.Profile = sketch11
pad5.setExpression("Length", "Params.pad5_length")
pad5.Reversed = True

# Sketch on XZ plane
sketch12 = doc.addObject("Sketcher::SketchObject", "Sketch011")
body.addObject(sketch12)
sketch12.AttachmentSupport = (doc.XZ_Plane, [""])
sketch12.MapMode = "FlatFace"
sketch12.AttachmentOffset = App.Placement(App.Vector(0, 0, 12.05), App.Rotation())
sketch12.addGeometry([
    Part.LineSegment(App.Vector(24.5, -4, 0), App.Vector(24.5, -2, 0)),  # 0
    Part.ArcOfCircle(Part.Circle(App.Vector(26.5, -2, 0), App.Vector(0, 0, 1), 2), math.radians(180), math.radians(270)),  # 1
    Part.LineSegment(App.Vector(26.5, -4, 0), App.Vector(24.5, -4, 0)),  # 2
    Part.LineSegment(App.Vector(-22.5, -2, 0), App.Vector(-22.5, -4, 0)),  # 3
    Part.LineSegment(App.Vector(-22.5, -4, 0), App.Vector(-24.5, -4, 0)),  # 4
    Part.ArcOfCircle(Part.Circle(App.Vector(-24.5, -2, 0), App.Vector(0, 0, 1), 2), math.radians(-90), math.radians(0)),  # 5
    Part.LineSegment(App.Vector(28, 6.5, 0), App.Vector(28, 0, 0)),  # 6
    Part.ArcOfCircle(Part.Circle(App.Vector(20.3, 0, 0), App.Vector(0, 0, 1), 7.8), math.radians(0), math.radians(57)),  # 7
    Part.LineSegment(App.Vector(24.5, 6.5, 0), App.Vector(28, 6.5, 0)),  # 8
    Part.LineSegment(App.Vector(-26, 0, 0), App.Vector(-26, 6.5, 0)),  # 9
    Part.LineSegment(App.Vector(-26, 6.5, 0), App.Vector(-22.5, 6.5, 0)),  # 10
    Part.ArcOfCircle(Part.Circle(App.Vector(-18.2, 0, 0), App.Vector(0, 0, 1), 7.8), math.radians(123), math.radians(180)),  # 11
], False)
sketch12.addConstraint([
    Sketcher.Constraint("Tangent", 0, 2, 1, 1),
    Sketcher.Constraint("Tangent", 1, 2, 2, 1),
    Sketcher.Constraint("Coincident", 2, 2, 0, 1),
    Sketcher.Constraint("Coincident", 3, 2, 4, 1),
    Sketcher.Constraint("Tangent", 4, 2, 5, 1),
    Sketcher.Constraint("Tangent", 5, 2, 3, 1),
    Sketcher.Constraint("Tangent", 6, 2, 7, 1),
    Sketcher.Constraint("Coincident", 7, 2, 8, 1),
    Sketcher.Constraint("Coincident", 8, 2, 6, 1),
    Sketcher.Constraint("Coincident", 9, 2, 10, 1),
    Sketcher.Constraint("Coincident", 10, 2, 11, 1),
    Sketcher.Constraint("Tangent", 11, 2, 9, 1),
    Sketcher.Constraint("Vertical", 0),
    Sketcher.Constraint("Horizontal", 2),
    Sketcher.Constraint("Vertical", 3),
    Sketcher.Constraint("Horizontal", 4),
    Sketcher.Constraint("Vertical", 6),
    Sketcher.Constraint("Horizontal", 8),
    Sketcher.Constraint("Vertical", 9),
    Sketcher.Constraint("Horizontal", 10),
    Sketcher.Constraint("Equal", 1, 5),
    Sketcher.Constraint("Equal", 7, 11),
    Sketcher.Constraint("PointOnObject", 7, 3, -1),
    Sketcher.Constraint("PointOnObject", 11, 3, -1),
    Sketcher.Constraint("Horizontal", 1, 3, 5, 3),
    Sketcher.Constraint("Horizontal", 8, 2, 9, 2),
    Sketcher.Constraint("Vertical", 2, 2, 7, 2),
    Sketcher.Constraint("Vertical", 5, 2, 10, 2),
    Sketcher.Constraint("Radius", 1, Q("2 mm")),
    Sketcher.Constraint("DistanceX", 8, 1, 8, 2, Q("3.5 mm")),
    Sketcher.Constraint("DistanceY", 6, 2, 6, 1, Q("6.5 mm")),
    Sketcher.Constraint("DistanceY", 1, 3, -1, 1, Q("2 mm")),
    Sketcher.Constraint("DistanceX", -1, 1, 1, 3, Q("26.539502 mm")),
    Sketcher.Constraint("DistanceX", 5, 3, -1, 1, Q("24.501992 mm")),
])
sketch12.setExpression("Constraints[28]", "Params.sketch12_radius")
sketch12.setExpression("Constraints[29]", "Params.sketch12_width")
sketch12.setExpression("Constraints[30]", "Params.sketch12_height")
pocket7 = doc.addObject("PartDesign::Pocket", "Pocket006")
body.addObject(pocket7)
pocket7.Profile = sketch12
pocket7.Type = "ThroughAll"
pocket7.Midplane = True

# Sketch on XZ plane
sketch13 = doc.addObject("Sketcher::SketchObject", "Sketch012")
body.addObject(sketch13)
sketch13.AttachmentSupport = (doc.XZ_Plane, [""])
sketch13.MapMode = "FlatFace"
sketch13.AttachmentOffset = App.Placement(App.Vector(0, 0, -12.05), App.Rotation())
sketch13.addGeometry([
    Part.Circle(App.Vector(-24.7, -2.7, 0), App.Vector(0, 0, 1), 0.6),
    Part.Circle(App.Vector(26.7, -2.7, 0), App.Vector(0, 0, 1), 0.6),
], False)
sketch13.addConstraint([
    Sketcher.Constraint("Equal", 0, 1),
    Sketcher.Constraint("Horizontal", 0, 3, 1, 3),
    Sketcher.Constraint("Diameter", 0, Q("1.2 mm")),
    Sketcher.Constraint("DistanceY", 0, 3, -1, 1, Q("2.7 mm")),
    Sketcher.Constraint("DistanceX", -1, 1, 1, 3, Q("26.739502 mm")),
    Sketcher.Constraint("DistanceX", 0, 3, -1, 1, Q("24.701992 mm")),
])
sketch13.setExpression("Constraints[2]", "Params.sketch13_diameter")
pocket8 = doc.addObject("PartDesign::Pocket", "Pocket007")
body.addObject(pocket8)
pocket8.Profile = sketch13
pocket8.setExpression("Length", "Params.pocket8_length")

# Sketch on XZ plane
sketch14 = doc.addObject("Sketcher::SketchObject", "Sketch013")
body.addObject(sketch14)
sketch14.AttachmentSupport = (doc.XZ_Plane, [""])
sketch14.MapMode = "FlatFace"
sketch14.AttachmentOffset = App.Placement(App.Vector(0, 0, 12.05), App.Rotation())
sketch14.addGeometry([
    Part.Circle(App.Vector(26.7, -2.7, 0), App.Vector(0, 0, 1), 0.6),
    Part.Circle(App.Vector(-24.7, -2.7, 0), App.Vector(0, 0, 1), 0.6),
], False)
sketch14.addConstraint([
    Sketcher.Constraint("Equal", 0, 1),
    Sketcher.Constraint("Horizontal", 0, 3, 1, 3),
    Sketcher.Constraint("Diameter", 0, Q("1.2 mm")),
    Sketcher.Constraint("DistanceY", 0, 3, -1, 1, Q("2.7 mm")),
    Sketcher.Constraint("DistanceX", -1, 1, 0, 3, Q("26.739502 mm")),
    Sketcher.Constraint("DistanceX", 1, 3, -1, 1, Q("24.701992 mm")),
])
sketch14.setExpression("Constraints[2]", "Params.sketch14_diameter")
pocket9 = doc.addObject("PartDesign::Pocket", "Pocket008")
body.addObject(pocket9)
pocket9.Profile = sketch14
pocket9.setExpression("Length", "Params.pocket9_length")
pocket9.Reversed = True

# Sketch on XY plane
sketch15 = doc.addObject("Sketcher::SketchObject", "Sketch014")
body.addObject(sketch15)
sketch15.AttachmentSupport = (doc.XY_Plane, [""])
sketch15.MapMode = "FlatFace"
sketch15.AttachmentOffset = App.Placement(App.Vector(0, 0, 6.5), App.Rotation())
sketch15.addGeometry([
    Part.ArcOfCircle(Part.Circle(App.Vector(0, 0, 0), App.Vector(0, 0, 1), 24), math.radians(-158), math.radians(158)),
    Part.LineSegment(App.Vector(-23, 9, 0), App.Vector(-23, -9, 0)),
    Part.Circle(App.Vector(0, 0, 0), App.Vector(0, 0, 1), 14),
], False)
sketch15.addConstraint([
    Sketcher.Constraint("Coincident", 0, 1, 1, 2),
    Sketcher.Constraint("Coincident", 1, 1, 0, 2),
    Sketcher.Constraint("Vertical", 1),
    Sketcher.Constraint("Coincident", 0, 3, -1, 1),
    Sketcher.Constraint("Coincident", 2, 3, -1, 1),
    Sketcher.Constraint("Diameter", 2, Q("27 mm")),
    Sketcher.Constraint("Radius", 0, Q("24.2 mm")),
    Sketcher.Constraint("DistanceY", 1, 2, 1, 1, Q("17.810152 mm")),
])
sketch15.setExpression("Constraints[5]", "Params.sketch15_diameter")
sketch15.setExpression("Constraints[6]", "Params.sketch15_radius")
pad6 = doc.addObject("PartDesign::Pad", "Pad005")
body.addObject(pad6)
pad6.Profile = sketch15
pad6.setExpression("Length", "Params.pad6_length")

# Sketch on XY plane
sketch16 = doc.addObject("Sketcher::SketchObject", "Sketch015")
body.addObject(sketch16)
sketch16.AttachmentSupport = (doc.XY_Plane, [""])
sketch16.MapMode = "FlatFace"
sketch16.AttachmentOffset = App.Placement(App.Vector(0, 0, 7), App.Rotation())
sketch16.addGeometry([
    Part.Circle(App.Vector(0, 0, 0), App.Vector(0, 0, 1), 20),
    Part.Circle(App.Vector(0, 0, 0), App.Vector(0, 0, 1), 20),
], False)
sketch16.addConstraint([
    Sketcher.Constraint("Coincident", 0, 3, -1, 1),
    Sketcher.Constraint("Coincident", 1, 3, -1, 1),
    Sketcher.Constraint("Diameter", 0, Q("40.9 mm")),
    Sketcher.Constraint("Diameter", 1, Q("39.7 mm")),
])
sketch16.setExpression("Constraints[2]", "Params.sketch16_diameter")
sketch16.setExpression("Constraints[3]", "Params.sketch16_diameter2")
pocket10 = doc.addObject("PartDesign::Pocket", "Pocket009")
body.addObject(pocket10)
pocket10.Profile = sketch16
pocket10.setExpression("Length", "Params.pocket10_length")

# Sketch on XZ plane
sketch17 = doc.addObject("Sketcher::SketchObject", "Sketch016")
body.addObject(sketch17)
sketch17.AttachmentSupport = (doc.XZ_Plane, [""])
sketch17.MapMode = "FlatFace"
sketch17.AttachmentOffset = App.Placement(App.Vector(0, 0, 25), App.Rotation())
sketch17.addGeometry(Part.Circle(App.Vector(-6.5, 4.8, 0), App.Vector(0, 0, 1), 1), False)
sketch17.addConstraint([
    Sketcher.Constraint("Diameter", 0, Q("2 mm")),
    Sketcher.Constraint("DistanceX", 0, 3, -1, 1, Q("6.5 mm")),
    Sketcher.Constraint("DistanceY", -1, 1, 0, 3, Q("4.8 mm")),
])
sketch17.setExpression("Constraints[0]", "Params.sketch17_diameter")
pocket11 = doc.addObject("PartDesign::Pocket", "Pocket010")
body.addObject(pocket11)
pocket11.Profile = sketch17
pocket11.setExpression("Length", "Params.pocket11_length")

doc.recompute()
